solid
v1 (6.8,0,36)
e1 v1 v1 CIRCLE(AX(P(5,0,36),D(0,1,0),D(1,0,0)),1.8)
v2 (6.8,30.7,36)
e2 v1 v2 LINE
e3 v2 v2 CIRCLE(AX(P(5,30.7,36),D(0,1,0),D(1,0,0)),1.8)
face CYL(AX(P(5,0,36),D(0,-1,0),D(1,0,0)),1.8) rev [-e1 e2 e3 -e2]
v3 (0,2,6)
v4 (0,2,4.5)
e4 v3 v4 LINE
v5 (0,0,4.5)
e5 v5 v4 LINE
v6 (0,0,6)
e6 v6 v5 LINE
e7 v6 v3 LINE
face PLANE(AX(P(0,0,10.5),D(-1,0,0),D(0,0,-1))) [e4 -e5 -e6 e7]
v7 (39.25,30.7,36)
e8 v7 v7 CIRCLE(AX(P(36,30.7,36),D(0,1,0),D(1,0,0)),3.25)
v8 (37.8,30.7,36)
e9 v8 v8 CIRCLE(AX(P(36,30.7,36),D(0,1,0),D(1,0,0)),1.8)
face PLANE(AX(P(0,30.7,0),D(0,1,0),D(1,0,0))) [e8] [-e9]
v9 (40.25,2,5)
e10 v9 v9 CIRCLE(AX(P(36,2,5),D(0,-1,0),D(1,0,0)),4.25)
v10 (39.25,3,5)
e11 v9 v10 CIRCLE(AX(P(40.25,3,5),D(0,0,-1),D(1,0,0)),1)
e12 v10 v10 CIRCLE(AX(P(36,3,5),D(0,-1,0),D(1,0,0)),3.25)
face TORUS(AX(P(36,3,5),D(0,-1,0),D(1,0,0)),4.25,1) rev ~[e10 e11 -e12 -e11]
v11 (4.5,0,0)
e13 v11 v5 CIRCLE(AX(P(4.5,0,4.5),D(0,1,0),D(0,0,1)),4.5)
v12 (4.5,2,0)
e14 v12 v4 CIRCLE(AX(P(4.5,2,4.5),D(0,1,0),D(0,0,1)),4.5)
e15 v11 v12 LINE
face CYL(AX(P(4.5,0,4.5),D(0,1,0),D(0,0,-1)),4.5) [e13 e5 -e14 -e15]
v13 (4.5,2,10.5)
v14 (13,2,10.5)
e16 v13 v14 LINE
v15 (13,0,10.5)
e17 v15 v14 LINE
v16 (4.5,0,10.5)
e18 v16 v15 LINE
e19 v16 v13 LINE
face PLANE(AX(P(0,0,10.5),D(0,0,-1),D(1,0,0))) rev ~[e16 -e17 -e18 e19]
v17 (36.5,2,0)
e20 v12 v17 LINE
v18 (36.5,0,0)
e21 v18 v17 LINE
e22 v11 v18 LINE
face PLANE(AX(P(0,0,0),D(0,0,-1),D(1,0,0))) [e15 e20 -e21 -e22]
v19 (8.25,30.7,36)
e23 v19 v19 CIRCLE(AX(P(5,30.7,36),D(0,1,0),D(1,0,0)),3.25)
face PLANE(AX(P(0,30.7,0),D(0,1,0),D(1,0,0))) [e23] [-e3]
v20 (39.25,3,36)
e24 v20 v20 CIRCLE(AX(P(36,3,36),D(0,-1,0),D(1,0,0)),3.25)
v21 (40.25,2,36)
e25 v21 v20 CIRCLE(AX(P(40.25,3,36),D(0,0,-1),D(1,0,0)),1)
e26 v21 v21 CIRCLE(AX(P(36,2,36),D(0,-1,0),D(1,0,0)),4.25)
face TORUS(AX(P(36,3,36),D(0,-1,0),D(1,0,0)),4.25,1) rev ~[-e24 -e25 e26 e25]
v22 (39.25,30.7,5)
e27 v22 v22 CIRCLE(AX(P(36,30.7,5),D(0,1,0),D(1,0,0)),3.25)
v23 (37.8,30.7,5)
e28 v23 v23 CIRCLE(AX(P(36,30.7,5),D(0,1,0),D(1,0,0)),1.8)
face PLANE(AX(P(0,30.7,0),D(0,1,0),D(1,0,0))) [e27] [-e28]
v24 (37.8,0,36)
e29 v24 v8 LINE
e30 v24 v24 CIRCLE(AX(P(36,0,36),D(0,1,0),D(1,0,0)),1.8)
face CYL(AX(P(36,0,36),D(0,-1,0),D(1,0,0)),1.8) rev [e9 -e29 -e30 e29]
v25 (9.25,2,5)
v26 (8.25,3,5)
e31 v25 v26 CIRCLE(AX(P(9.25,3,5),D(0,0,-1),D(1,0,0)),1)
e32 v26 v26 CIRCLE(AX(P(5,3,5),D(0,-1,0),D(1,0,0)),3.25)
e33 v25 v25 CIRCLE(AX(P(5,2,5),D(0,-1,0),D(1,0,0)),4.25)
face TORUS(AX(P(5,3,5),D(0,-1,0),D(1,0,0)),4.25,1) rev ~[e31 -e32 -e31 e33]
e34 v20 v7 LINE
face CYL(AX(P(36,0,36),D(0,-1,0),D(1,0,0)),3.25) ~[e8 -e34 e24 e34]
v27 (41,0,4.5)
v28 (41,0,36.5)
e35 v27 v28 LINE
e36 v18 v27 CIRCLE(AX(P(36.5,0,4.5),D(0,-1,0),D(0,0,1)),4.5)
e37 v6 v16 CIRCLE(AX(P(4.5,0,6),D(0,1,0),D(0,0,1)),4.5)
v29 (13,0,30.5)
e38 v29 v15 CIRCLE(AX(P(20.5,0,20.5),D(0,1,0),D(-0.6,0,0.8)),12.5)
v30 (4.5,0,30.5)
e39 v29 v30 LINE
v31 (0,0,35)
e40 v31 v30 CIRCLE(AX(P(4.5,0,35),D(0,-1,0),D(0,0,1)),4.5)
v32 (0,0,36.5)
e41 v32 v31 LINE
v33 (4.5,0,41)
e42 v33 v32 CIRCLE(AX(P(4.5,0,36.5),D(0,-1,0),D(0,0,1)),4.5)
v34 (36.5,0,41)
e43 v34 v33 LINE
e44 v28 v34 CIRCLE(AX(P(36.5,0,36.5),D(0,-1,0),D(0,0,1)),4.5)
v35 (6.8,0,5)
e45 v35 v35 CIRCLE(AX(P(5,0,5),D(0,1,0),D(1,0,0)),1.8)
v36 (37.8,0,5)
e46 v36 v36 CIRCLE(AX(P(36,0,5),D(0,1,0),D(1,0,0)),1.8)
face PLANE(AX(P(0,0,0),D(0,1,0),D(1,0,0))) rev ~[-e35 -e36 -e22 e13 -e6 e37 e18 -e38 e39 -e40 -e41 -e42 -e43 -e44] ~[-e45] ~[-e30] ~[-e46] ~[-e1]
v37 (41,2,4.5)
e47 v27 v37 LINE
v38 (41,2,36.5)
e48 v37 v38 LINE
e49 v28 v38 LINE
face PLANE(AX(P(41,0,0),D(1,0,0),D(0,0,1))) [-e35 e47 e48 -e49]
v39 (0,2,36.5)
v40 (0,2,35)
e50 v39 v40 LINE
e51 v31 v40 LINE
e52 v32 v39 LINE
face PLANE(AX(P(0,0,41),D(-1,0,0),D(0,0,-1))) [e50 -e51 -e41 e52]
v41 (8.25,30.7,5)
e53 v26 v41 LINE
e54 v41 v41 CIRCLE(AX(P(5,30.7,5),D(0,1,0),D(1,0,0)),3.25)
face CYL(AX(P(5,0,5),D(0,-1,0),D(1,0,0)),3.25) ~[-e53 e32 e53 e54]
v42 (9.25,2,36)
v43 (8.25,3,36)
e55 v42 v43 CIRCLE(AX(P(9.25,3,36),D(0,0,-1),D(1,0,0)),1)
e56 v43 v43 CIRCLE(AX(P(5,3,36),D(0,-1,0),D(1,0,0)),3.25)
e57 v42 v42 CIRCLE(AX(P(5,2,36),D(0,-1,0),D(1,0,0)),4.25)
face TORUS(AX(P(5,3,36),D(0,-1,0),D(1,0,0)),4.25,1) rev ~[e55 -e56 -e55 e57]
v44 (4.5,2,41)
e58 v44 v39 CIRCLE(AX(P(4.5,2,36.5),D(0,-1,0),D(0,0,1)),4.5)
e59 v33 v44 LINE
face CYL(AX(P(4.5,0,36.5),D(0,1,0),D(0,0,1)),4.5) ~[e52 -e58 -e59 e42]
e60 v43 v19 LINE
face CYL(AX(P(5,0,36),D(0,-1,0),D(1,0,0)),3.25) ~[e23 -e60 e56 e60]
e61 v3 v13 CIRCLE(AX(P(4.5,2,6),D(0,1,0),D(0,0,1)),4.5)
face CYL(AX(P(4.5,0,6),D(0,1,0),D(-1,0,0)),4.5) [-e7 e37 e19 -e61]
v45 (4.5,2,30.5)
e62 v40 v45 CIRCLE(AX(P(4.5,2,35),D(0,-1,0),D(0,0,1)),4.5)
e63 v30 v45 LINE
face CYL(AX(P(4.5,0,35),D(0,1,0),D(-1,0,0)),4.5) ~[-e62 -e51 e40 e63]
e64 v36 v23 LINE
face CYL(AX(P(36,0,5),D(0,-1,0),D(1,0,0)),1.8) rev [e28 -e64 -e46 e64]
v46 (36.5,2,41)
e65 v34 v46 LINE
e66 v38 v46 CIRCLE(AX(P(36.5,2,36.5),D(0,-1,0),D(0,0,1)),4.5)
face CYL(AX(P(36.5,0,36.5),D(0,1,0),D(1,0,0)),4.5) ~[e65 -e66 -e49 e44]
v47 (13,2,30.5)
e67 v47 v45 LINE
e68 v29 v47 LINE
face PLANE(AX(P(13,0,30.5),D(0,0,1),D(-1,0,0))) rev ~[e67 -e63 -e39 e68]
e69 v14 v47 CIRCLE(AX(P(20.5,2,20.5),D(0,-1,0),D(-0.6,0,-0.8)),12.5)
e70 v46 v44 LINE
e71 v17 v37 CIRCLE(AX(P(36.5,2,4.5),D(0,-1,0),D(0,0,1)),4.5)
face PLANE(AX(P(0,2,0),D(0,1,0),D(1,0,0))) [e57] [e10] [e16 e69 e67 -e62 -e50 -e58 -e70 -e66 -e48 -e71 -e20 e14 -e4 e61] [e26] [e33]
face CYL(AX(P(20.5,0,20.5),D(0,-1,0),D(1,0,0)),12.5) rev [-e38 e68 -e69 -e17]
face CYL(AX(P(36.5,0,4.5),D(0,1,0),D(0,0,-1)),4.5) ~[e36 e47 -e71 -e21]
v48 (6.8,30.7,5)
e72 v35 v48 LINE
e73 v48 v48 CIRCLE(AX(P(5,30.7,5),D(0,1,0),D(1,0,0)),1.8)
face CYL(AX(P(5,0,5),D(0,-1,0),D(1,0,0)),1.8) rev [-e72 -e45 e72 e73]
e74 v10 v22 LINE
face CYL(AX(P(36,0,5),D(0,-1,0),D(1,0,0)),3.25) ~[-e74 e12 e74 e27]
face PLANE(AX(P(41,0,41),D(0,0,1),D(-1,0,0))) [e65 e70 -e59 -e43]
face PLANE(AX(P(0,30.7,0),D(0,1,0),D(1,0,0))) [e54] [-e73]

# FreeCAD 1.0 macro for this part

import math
import FreeCAD as App
import Part
import Sketcher

V = App.Vector


def edges_at(feature, points):
    """Names of the edges that pass closest to the given points."""
    edges = feature.Shape.Edges
    near = lambda p: min(range(len(edges)), key=lambda i: edges[i].distToShape(Part.Vertex(*p))[0])
    return sorted({f"Edge{near(p) + 1}" for p in points})

doc = App.newDocument("Part")
body = doc.addObject("PartDesign::Body", "Body")

sketch1 = body.newObject("Sketcher::SketchObject", "Sketch")
sketch1.AttachmentSupport = (doc.getObject("XZ_Plane"), [""])
sketch1.MapMode = "FlatFace"
sketch1.addGeometry(Part.LineSegment(V(41, 0, 0), V(0, 0, 0)), False)
sketch1.addGeometry(Part.LineSegment(V(0, 0, 0), V(0, 10.5, 0)), False)
sketch1.addGeometry(Part.LineSegment(V(0, 10.5, 0), V(13, 10.5, 0)), False)
sketch1.addGeometry(Part.ArcOfCircle(Part.Circle(V(20.5, 20.5, 0), V(0, 0, 1), 12.5), math.radians(-127), math.radians(127)), False)
sketch1.addGeometry(Part.LineSegment(V(13, 30.5, 0), V(0, 30.5, 0)), False)
sketch1.addGeometry(Part.LineSegment(V(0, 30.5, 0), V(0, 41, 0)), False)
sketch1.addGeometry(Part.LineSegment(V(0, 41, 0), V(41, 41, 0)), False)
sketch1.addGeometry(Part.LineSegment(V(41, 41, 0), V(41, 0, 0)), False)
sketch1.addGeometry(Part.Circle(V(5, 36, 0), V(0, 0, 1), 1.8), False)
sketch1.addGeometry(Part.Circle(V(36, 36, 0), V(0, 0, 1), 1.8), False)
sketch1.addGeometry(Part.Circle(V(5, 5, 0), V(0, 0, 1), 1.8), False)
sketch1.addGeometry(Part.Circle(V(36, 5, 0), V(0, 0, 1), 1.8), False)
sketch1.addConstraint(Sketcher.Constraint("Coincident", 0, 2, 1, 1))
sketch1.addConstraint(Sketcher.Constraint("Coincident", 1, 2, 2, 1))
sketch1.addConstraint(Sketcher.Constraint("Coincident", 2, 2, 3, 1))
sketch1.addConstraint(Sketcher.Constraint("Coincident", 3, 2, 4, 1))
sketch1.addConstraint(Sketcher.Constraint("Coincident", 4, 2, 5, 1))
sketch1.addConstraint(Sketcher.Constraint("Coincident", 5, 2, 6, 1))
sketch1.addConstraint(Sketcher.Constraint("Coincident", 6, 2, 7, 1))
sketch1.addConstraint(Sketcher.Constraint("Coincident", 7, 2, 0, 1))
sketch1.addConstraint(Sketcher.Constraint("Horizontal", 0))
sketch1.addConstraint(Sketcher.Constraint("Vertical", 1))
sketch1.addConstraint(Sketcher.Constraint("Horizontal", 2))
sketch1.addConstraint(Sketcher.Constraint("Horizontal", 4))
sketch1.addConstraint(Sketcher.Constraint("Vertical", 5))
sketch1.addConstraint(Sketcher.Constraint("Horizontal", 6))
sketch1.addConstraint(Sketcher.Constraint("Vertical", 7))
sketch1.addConstraint(Sketcher.Constraint("Coincident", 0, 2, -1, 1))
sketch1.addConstraint(Sketcher.Constraint("Equal", 8, 9))
sketch1.addConstraint(Sketcher.Constraint("Equal", 9, 10))
sketch1.addConstraint(Sketcher.Constraint("Equal", 10, 11))
sketch1.addConstraint(Sketcher.Constraint("PointOnObject", 4, 2, -2))
sketch1.addConstraint(Sketcher.Constraint("Horizontal", 8, 3, 9, 3))
sketch1.addConstraint(Sketcher.Constraint("Horizontal", 10, 3, 11, 3))
sketch1.addConstraint(Sketcher.Constraint("Vertical", 8, 3, 10, 3))
sketch1.addConstraint(Sketcher.Constraint("Vertical", 9, 3, 11, 3))
sketch1.addConstraint(Sketcher.Constraint("Vertical", 2, 2, 3, 2))
sketch1.addConstraint(Sketcher.Constraint("Equal", 1, 5))
sketch1.addConstraint(Sketcher.Constraint("Equal", 6, 7))
sketch1.addConstraint(Sketcher.Constraint("Diameter", 8, 3.6))
sketch1.addConstraint(Sketcher.Constraint("Radius", 3, 12.5))
sketch1.addConstraint(Sketcher.Constraint("DistanceX", 0, 2, 0, 1, 41.0))
sketch1.addConstraint(Sketcher.Constraint("DistanceX", 8, 3, 9, 3, 31.0))
sketch1.addConstraint(Sketcher.Constraint("DistanceY", 10, 3, 8, 3, 31.0))
sketch1.addConstraint(Sketcher.Constraint("DistanceY", 1, 2, 3, 3, 10.0))
sketch1.addConstraint(Sketcher.Constraint("DistanceX", 2, 1, 2, 2, 13.0))
sketch1.addConstraint(Sketcher.Constraint("DistanceX", -1, 1, 8, 3, 5.0))
sketch1.addConstraint(Sketcher.Constraint("DistanceY", -1, 1, 8, 3, 36.0))
pad1 = body.newObject("PartDesign::Pad", "Pad")
pad1.Profile = sketch1
pad1.Length = 2
pad1.Reversed = True

sketch2 = body.newObject("Sketcher::SketchObject", "Sketch001")
sketch2.AttachmentSupport = (doc.getObject("XZ_Plane"), [""])
sketch2.MapMode = "FlatFace"
sketch2.addGeometry(Part.Circle(V(5, 36, 0), V(0, 0, 1), 3.2), False)
sketch2.addGeometry(Part.Circle(V(5, 36, 0), V(0, 0, 1), 1.8), False)
sketch2.addGeometry(Part.Circle(V(36, 36, 0), V(0, 0, 1), 3.2), False)
sketch2.addGeometry(Part.Circle(V(36, 36, 0), V(0, 0, 1), 1.8), False)
sketch2.addGeometry(Part.Circle(V(36, 5, 0), V(0, 0, 1), 3.2), False)
sketch2.addGeometry(Part.Circle(V(36, 5, 0), V(0, 0, 1), 1.8), False)
sketch2.addGeometry(Part.Circle(V(5, 5, 0), V(0, 0, 1), 3.2), False)
sketch2.addGeometry(Part.Circle(V(5, 5, 0), V(0, 0, 1), 1.8), False)
sketch2.addConstraint(Sketcher.Constraint("Coincident", 1, 3, 0, 3))
sketch2.addConstraint(Sketcher.Constraint("Coincident", 3, 3, 2, 3))
sketch2.addConstraint(Sketcher.Constraint("Coincident", 5, 3, 4, 3))
sketch2.addConstraint(Sketcher.Constraint("Coincident", 7, 3, 6, 3))
sketch2.addConstraint(Sketcher.Constraint("Equal", 0, 2))
sketch2.addConstraint(Sketcher.Constraint("Equal", 1, 3))
sketch2.addConstraint(Sketcher.Constraint("Equal", 2, 4))
sketch2.addConstraint(Sketcher.Constraint("Equal", 3, 5))
sketch2.addConstraint(Sketcher.Constraint("Equal", 4, 6))
sketch2.addConstraint(Sketcher.Constraint("Equal", 5, 7))
sketch2.addConstraint(Sketcher.Constraint("Horizontal", 1, 3, 2, 3))
sketch2.addConstraint(Sketcher.Constraint("Horizontal", 5, 3, 6, 3))
sketch2.addConstraint(Sketcher.Constraint("Vertical", 3, 3, 4, 3))
sketch2.addConstraint(Sketcher.Constraint("Vertical", 1, 3, 6, 3))
sketch2.addConstraint(Sketcher.Constraint("Diameter", 0, 6.5))
sketch2.addConstraint(Sketcher.Constraint("Diameter", 1, 3.6))
sketch2.addConstraint(Sketcher.Constraint("DistanceX", 0, 3, 2, 3, 31.0))
sketch2.addConstraint(Sketcher.Constraint("DistanceY", 4, 3, 2, 3, 31.0))
sketch2.addConstraint(Sketcher.Constraint("DistanceX", -1, 1, 0, 3, 5.0))
sketch2.addConstraint(Sketcher.Constraint("DistanceY", -1, 1, 0, 3, 36.0))
pad2 = body.newObject("PartDesign::Pad", "Pad001")
pad2.Profile = sketch2
pad2.Length = 30.7
pad2.Reversed = True
doc.recompute()

fillet = body.newObject("PartDesign::Fillet", "Fillet")
fillet.Base = (pad2, edges_at(pad2, [
    (32.97, 2, 34.825),
    (32.97, 2, 3.825),
    (1.97, 2, 3.825),
    (1.97, 2, 34.825),
]))
fillet.Radius = 1
doc.recompute()

fillet2 = body.newObject("PartDesign::Fillet", "Fillet001")
fillet2.Base = (fillet, edges_at(fillet, [
    (41, 1, 0),
    (41, 1, 41),
    (0, 1, 0),
    (0, 1, 41),
    (0, 1, 10.5),
    (0, 1, 30.5),
]))
fillet2.Radius = 4.5

doc.recompute()
